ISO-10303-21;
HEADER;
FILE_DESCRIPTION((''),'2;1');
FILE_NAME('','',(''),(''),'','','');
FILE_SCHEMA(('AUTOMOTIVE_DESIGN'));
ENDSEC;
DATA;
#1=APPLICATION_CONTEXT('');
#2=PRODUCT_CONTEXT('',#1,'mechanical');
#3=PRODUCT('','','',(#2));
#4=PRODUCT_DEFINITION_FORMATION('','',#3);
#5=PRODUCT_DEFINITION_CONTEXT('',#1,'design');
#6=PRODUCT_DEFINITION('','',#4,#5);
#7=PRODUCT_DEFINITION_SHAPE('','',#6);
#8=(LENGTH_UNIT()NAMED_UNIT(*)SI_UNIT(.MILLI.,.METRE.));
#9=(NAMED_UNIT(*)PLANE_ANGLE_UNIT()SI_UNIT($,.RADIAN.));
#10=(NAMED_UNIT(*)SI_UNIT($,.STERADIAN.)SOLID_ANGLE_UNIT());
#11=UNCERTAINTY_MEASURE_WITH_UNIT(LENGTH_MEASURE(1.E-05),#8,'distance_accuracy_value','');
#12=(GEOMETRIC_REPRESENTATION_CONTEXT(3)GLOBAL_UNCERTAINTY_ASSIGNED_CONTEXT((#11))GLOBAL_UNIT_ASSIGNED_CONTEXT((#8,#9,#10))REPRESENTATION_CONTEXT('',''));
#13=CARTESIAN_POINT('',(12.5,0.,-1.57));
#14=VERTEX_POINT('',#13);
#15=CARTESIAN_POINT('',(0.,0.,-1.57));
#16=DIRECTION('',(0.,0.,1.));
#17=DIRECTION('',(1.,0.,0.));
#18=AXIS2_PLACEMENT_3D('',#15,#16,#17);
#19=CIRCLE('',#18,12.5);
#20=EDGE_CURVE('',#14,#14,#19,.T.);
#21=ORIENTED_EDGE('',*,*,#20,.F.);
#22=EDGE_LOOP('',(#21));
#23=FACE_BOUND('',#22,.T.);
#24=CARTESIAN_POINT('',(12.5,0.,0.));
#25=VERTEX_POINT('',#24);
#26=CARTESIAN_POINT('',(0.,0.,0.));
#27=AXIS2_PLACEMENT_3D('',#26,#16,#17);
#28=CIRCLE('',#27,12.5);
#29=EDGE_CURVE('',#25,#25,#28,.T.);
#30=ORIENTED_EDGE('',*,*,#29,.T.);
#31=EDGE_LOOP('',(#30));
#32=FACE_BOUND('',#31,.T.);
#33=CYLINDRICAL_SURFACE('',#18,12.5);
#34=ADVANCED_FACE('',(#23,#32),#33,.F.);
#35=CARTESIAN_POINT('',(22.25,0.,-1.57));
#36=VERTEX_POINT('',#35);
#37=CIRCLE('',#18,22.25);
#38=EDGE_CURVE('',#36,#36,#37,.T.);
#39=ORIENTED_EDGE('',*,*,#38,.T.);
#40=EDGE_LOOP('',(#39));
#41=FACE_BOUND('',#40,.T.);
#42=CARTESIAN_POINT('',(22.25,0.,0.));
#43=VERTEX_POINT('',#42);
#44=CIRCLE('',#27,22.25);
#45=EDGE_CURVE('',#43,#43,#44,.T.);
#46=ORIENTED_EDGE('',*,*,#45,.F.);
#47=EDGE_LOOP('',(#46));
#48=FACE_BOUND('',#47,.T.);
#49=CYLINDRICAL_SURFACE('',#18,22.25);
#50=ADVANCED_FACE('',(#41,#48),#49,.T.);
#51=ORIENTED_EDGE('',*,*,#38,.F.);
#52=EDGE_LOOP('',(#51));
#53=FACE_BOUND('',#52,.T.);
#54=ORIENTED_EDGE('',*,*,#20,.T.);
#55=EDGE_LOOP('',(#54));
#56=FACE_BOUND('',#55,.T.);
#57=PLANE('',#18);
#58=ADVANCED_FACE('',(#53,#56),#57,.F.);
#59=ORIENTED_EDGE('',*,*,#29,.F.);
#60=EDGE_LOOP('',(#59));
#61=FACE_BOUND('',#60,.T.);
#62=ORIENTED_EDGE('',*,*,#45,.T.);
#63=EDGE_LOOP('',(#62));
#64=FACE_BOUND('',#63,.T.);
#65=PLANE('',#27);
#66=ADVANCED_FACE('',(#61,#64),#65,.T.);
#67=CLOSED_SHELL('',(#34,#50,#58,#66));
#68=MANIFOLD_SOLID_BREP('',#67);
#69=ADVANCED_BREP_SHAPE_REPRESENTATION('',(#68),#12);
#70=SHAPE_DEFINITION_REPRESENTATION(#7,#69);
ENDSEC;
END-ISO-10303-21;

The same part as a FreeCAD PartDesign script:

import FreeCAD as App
import Part
import Sketcher
from FreeCAD import Vector
Q = App.Units.Quantity

doc = App.newDocument("Part")
body = doc.addObject("PartDesign::Body", "Body")

# Sketch on XY plane
sketch1 = body.newObject("Sketcher::SketchObject", "Sketch")
sketch1.AttachmentSupport = (doc.getObject("XY_Plane"), [""])
sketch1.MapMode = "FlatFace"
sketch1.addGeometry(Part.Circle(Vector(0, 0, 0), Vector(0, 0, 1), 22), False)
sketch1.addGeometry(Part.Circle(Vector(0, 0, 0), Vector(0, 0, 1), 12), False)
sketch1.addConstraint(Sketcher.Constraint("Coincident", 0, 3, -1, 1))
sketch1.addConstraint(Sketcher.Constraint("Coincident", 1, 3, -1, 1))
sketch1.addConstraint(Sketcher.Constraint("Diameter", 1, Q("25 mm")))
sketch1.addConstraint(Sketcher.Constraint("Diameter", 0, Q("44.5 mm")))
pad1 = body.newObject("PartDesign::Pad", "Pad")
pad1.Profile = sketch1
pad1.Length = 1.57
pad1.Reversed = True

doc.recompute()
